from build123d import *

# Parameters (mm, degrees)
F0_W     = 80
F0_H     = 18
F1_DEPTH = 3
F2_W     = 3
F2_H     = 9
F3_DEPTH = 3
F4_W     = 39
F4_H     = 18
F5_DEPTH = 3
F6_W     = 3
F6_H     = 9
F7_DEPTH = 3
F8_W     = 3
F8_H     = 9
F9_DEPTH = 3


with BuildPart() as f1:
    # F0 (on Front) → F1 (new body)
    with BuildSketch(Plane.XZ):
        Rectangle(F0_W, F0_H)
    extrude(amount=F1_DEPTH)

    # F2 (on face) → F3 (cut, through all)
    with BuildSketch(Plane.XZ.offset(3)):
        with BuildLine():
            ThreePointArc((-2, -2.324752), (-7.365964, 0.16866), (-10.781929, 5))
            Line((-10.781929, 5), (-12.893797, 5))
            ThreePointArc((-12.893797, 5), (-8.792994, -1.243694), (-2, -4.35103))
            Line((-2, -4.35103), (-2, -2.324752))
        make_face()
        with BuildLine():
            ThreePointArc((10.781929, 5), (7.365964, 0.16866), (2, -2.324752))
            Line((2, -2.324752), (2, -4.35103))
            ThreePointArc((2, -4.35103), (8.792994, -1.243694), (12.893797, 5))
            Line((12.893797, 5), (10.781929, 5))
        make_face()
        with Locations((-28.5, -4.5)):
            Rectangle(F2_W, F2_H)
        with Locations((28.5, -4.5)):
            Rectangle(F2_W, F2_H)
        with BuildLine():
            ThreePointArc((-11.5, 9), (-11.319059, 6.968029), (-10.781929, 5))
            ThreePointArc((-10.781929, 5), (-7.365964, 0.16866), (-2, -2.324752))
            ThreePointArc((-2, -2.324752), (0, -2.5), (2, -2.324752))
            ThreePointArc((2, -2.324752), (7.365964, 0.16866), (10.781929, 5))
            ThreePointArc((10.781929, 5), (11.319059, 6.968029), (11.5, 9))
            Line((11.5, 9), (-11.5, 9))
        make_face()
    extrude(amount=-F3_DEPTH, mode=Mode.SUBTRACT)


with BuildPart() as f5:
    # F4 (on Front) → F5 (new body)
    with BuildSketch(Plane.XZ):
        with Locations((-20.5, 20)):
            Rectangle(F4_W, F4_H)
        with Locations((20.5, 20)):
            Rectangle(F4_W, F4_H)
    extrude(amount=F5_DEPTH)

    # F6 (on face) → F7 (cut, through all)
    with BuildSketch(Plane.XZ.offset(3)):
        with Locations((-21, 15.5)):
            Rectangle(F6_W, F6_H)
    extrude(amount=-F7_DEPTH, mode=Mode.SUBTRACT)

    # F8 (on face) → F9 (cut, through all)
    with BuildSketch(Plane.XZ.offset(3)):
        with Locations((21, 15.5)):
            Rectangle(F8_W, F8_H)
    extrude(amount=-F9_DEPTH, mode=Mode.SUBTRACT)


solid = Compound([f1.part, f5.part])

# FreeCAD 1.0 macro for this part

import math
import FreeCAD as App
import Part
import Sketcher

V = App.Vector
Q = App.Units.Quantity

doc = App.newDocument("Part")
body = doc.addObject("PartDesign::Body", "Body")

# Sketch on XZ plane
sketch1 = body.newObject("Sketcher::SketchObject", "Sketch")
sketch1.AttachmentSupport = (doc.getObject("XZ_Plane"), [""])
sketch1.MapMode = "FlatFace"
sketch1.addGeometry([
    Part.LineSegment(V(-40, 9, 0), V(-40, -9, 0)),
    Part.LineSegment(V(-40, -9, 0), V(40, -9, 0)),
    Part.LineSegment(V(40, -9, 0), V(40, 9, 0)),
    Part.LineSegment(V(40, 9, 0), V(-40, 9, 0)),
], False)
sketch1.addConstraint([
    Sketcher.Constraint("Coincident", 0, 2, 1, 1),
    Sketcher.Constraint("Coincident", 1, 2, 2, 1),
    Sketcher.Constraint("Coincident", 2, 2, 3, 1),
    Sketcher.Constraint("Coincident", 3, 2, 0, 1),
    Sketcher.Constraint("Vertical", 0),
    Sketcher.Constraint("Horizontal", 1),
    Sketcher.Constraint("Vertical", 2),
    Sketcher.Constraint("Horizontal", 3),
    Sketcher.Constraint("Symmetric", 0, 2, 2, 2, -1, 1),
    Sketcher.Constraint("DistanceX", 1, 1, 1, 2, Q("80 mm")),
    Sketcher.Constraint("DistanceY", 0, 2, 0, 1, Q("18 mm")),
])
pad1 = body.newObject("PartDesign::Pad", "Pad")
pad1.Profile = sketch1
pad1.Length = 3

# Sketch on XZ plane
sketch2 = body.newObject("Sketcher::SketchObject", "Sketch001")
sketch2.AttachmentSupport = (doc.getObject("XZ_Plane"), [""])
sketch2.MapMode = "FlatFace"
sketch2.AttachmentOffset = App.Placement(V(0, 0, 3), App.Rotation())
sketch2.addGeometry([
    Part.LineSegment(V(-10.781929, 5, 0), V(-12.893797, 5, 0)),  # 0
    Part.ArcOfCircle(Part.Circle(V(-0.000001, 8.999998, 0), V(0, 0, 1), 13.499998), math.radians(-162.76472), math.radians(-98.51962)),  # 1
    Part.LineSegment(V(-2, -4.35103, 0), V(-2, -2.324752, 0)),  # 2
    Part.ArcOfCircle(Part.Circle(V(0, 9.000022, 0), V(0, 0, 1), 11.500022), math.radians(-100.01539), math.radians(-79.98461)),  # 3
    Part.LineSegment(V(2, -2.324752, 0), V(2, -4.35103, 0)),  # 4
    Part.ArcOfCircle(Part.Circle(V(0.000001, 8.999998, 0), V(0, 0, 1), 13.499998), math.radians(-81.48038), math.radians(-17.23528)),  # 5
    Part.LineSegment(V(12.893797, 5, 0), V(10.781929, 5, 0)),  # 6
    Part.ArcOfCircle(Part.Circle(V(0.000017, 8.999998, 0), V(0, 0, 1), 11.499983), math.radians(-20.354427), math.radians(0.000011)),  # 7
    Part.LineSegment(V(11.5, 9, 0), V(-11.5, 9, 0)),  # 8
    Part.ArcOfCircle(Part.Circle(V(-0.000017, 8.999998, 0), V(0, 0, 1), 11.499983), math.radians(179.999989), math.radians(200.354427)),  # 9
    Part.LineSegment(V(-30, 0, 0), V(-30, -9, 0)),  # 10
    Part.LineSegment(V(-30, -9, 0), V(-27, -9, 0)),  # 11
    Part.LineSegment(V(-27, -9, 0), V(-27, 0, 0)),  # 12
    Part.LineSegment(V(-27, 0, 0), V(-30, 0, 0)),  # 13
    Part.LineSegment(V(27, 0, 0), V(27, -9, 0)),  # 14
    Part.LineSegment(V(27, -9, 0), V(30, -9, 0)),  # 15
    Part.LineSegment(V(30, -9, 0), V(30, 0, 0)),  # 16
    Part.LineSegment(V(30, 0, 0), V(27, 0, 0)),  # 17
], False)
sketch2.addConstraint([
    Sketcher.Constraint("Coincident", 0, 2, 1, 1),
    Sketcher.Constraint("Coincident", 1, 2, 2, 1),
    Sketcher.Constraint("Coincident", 2, 2, 3, 1),
    Sketcher.Constraint("Coincident", 3, 2, 4, 1),
    Sketcher.Constraint("Coincident", 4, 2, 5, 1),
    Sketcher.Constraint("Coincident", 5, 2, 6, 1),
    Sketcher.Constraint("Coincident", 6, 2, 7, 1),
    Sketcher.Constraint("Coincident", 7, 2, 8, 1),
    Sketcher.Constraint("Coincident", 8, 2, 9, 1),
    Sketcher.Constraint("Coincident", 9, 2, 0, 1),
    Sketcher.Constraint("Coincident", 10, 2, 11, 1),
    Sketcher.Constraint("Coincident", 11, 2, 12, 1),
    Sketcher.Constraint("Coincident", 12, 2, 13, 1),
    Sketcher.Constraint("Coincident", 13, 2, 10, 1),
    Sketcher.Constraint("Coincident", 14, 2, 15, 1),
    Sketcher.Constraint("Coincident", 15, 2, 16, 1),
    Sketcher.Constraint("Coincident", 16, 2, 17, 1),
    Sketcher.Constraint("Coincident", 17, 2, 14, 1),
    Sketcher.Constraint("Horizontal", 0),
    Sketcher.Constraint("Vertical", 2),
    Sketcher.Constraint("Vertical", 4),
    Sketcher.Constraint("Horizontal", 6),
    Sketcher.Constraint("Horizontal", 8),
    Sketcher.Constraint("Vertical", 10),
    Sketcher.Constraint("Horizontal", 11),
    Sketcher.Constraint("Vertical", 12),
    Sketcher.Constraint("Horizontal", 13),
    Sketcher.Constraint("Vertical", 14),
    Sketcher.Constraint("Horizontal", 15),
    Sketcher.Constraint("Vertical", 16),
    Sketcher.Constraint("Horizontal", 17),
    Sketcher.Constraint("Coincident", 5, 3, 1, 3),
    Sketcher.Constraint("Equal", 1, 5),
    Sketcher.Constraint("Equal", 7, 9),
    Sketcher.Constraint("Symmetric", 13, 2, 16, 2, -1, 1),
    Sketcher.Constraint("Symmetric", 7, 3, 9, 3, -2),
    Sketcher.Constraint("Symmetric", 2, 2, 3, 2, -2),
    Sketcher.Constraint("Symmetric", 0, 2, 5, 2, -2),
    Sketcher.Constraint("Symmetric", 11, 2, 14, 2, -2),
    Sketcher.Constraint("PointOnObject", 12, 2, -1),
    Sketcher.Constraint("Horizontal", 5, 3, 7, 3),
    Sketcher.Constraint("Horizontal", 5, 3, 7, 2),
    Sketcher.Constraint("Radius", 1, Q("13.499998 mm")),
    Sketcher.Constraint("DistanceX", 8, 2, 8, 1, Q("23 mm")),
    Sketcher.Constraint("DistanceX", 11, 1, 11, 2, Q("3 mm")),
    Sketcher.Constraint("DistanceY", 10, 2, 10, 1, Q("9 mm")),
    Sketcher.Constraint("DistanceY", -1, 1, 1, 3, Q("8.999998 mm")),
    Sketcher.Constraint("DistanceY", -1, 1, 0, 2, Q("5 mm")),
    Sketcher.Constraint("DistanceX", 1, 2, -1, 1, Q("2 mm")),
    Sketcher.Constraint("DistanceX", 10, 2, -1, 1, Q("30 mm")),
    Sketcher.Constraint("Radius", 3, Q("11.500022 mm")),
    Sketcher.Constraint("Radius", 7, Q("11.499983 mm")),
    Sketcher.Constraint("DistanceY", 2, 1, 2, 2, Q("2.026278 mm")),
])
pocket1 = body.newObject("PartDesign::Pocket", "Pocket")
pocket1.Profile = sketch2
pocket1.Type = "ThroughAll"
body2 = doc.addObject("PartDesign::Body", "Body001")
body2.AllowCompound = True

# Sketch on XZ plane
sketch3 = body2.newObject("Sketcher::SketchObject", "Sketch002")
sketch3.AttachmentSupport = (doc.getObject("XZ_Plane001"), [""])
sketch3.MapMode = "FlatFace"
sketch3.addGeometry([
    Part.LineSegment(V(-40, 29, 0), V(-40, 11, 0)),  # 0
    Part.LineSegment(V(-40, 11, 0), V(-1, 11, 0)),  # 1
    Part.LineSegment(V(-1, 11, 0), V(-1, 29, 0)),  # 2
    Part.LineSegment(V(-1, 29, 0), V(-40, 29, 0)),  # 3
    Part.LineSegment(V(1, 29, 0), V(1, 11, 0)),  # 4
    Part.LineSegment(V(1, 11, 0), V(40, 11, 0)),  # 5
    Part.LineSegment(V(40, 11, 0), V(40, 29, 0)),  # 6
    Part.LineSegment(V(40, 29, 0), V(1, 29, 0)),  # 7
], False)
sketch3.addConstraint([
    Sketcher.Constraint("Coincident", 0, 2, 1, 1),
    Sketcher.Constraint("Coincident", 1, 2, 2, 1),
    Sketcher.Constraint("Coincident", 2, 2, 3, 1),
    Sketcher.Constraint("Coincident", 3, 2, 0, 1),
    Sketcher.Constraint("Coincident", 4, 2, 5, 1),
    Sketcher.Constraint("Coincident", 5, 2, 6, 1),
    Sketcher.Constraint("Coincident", 6, 2, 7, 1),
    Sketcher.Constraint("Coincident", 7, 2, 4, 1),
    Sketcher.Constraint("Vertical", 0),
    Sketcher.Constraint("Horizontal", 1),
    Sketcher.Constraint("Vertical", 2),
    Sketcher.Constraint("Horizontal", 3),
    Sketcher.Constraint("Vertical", 4),
    Sketcher.Constraint("Horizontal", 5),
    Sketcher.Constraint("Vertical", 6),
    Sketcher.Constraint("Horizontal", 7),
    Sketcher.Constraint("Symmetric", 1, 2, 4, 2, -2),
    Sketcher.Constraint("Symmetric", 3, 2, 6, 2, -2),
    Sketcher.Constraint("DistanceX", 1, 1, 1, 2, Q("39 mm")),
    Sketcher.Constraint("DistanceY", 0, 2, 0, 1, Q("18 mm")),
    Sketcher.Constraint("DistanceX", 0, 2, -1, 1, Q("40 mm")),
    Sketcher.Constraint("DistanceY", -1, 1, 0, 2, Q("11 mm")),
])
pad2 = body2.newObject("PartDesign::Pad", "Pad001")
pad2.Profile = sketch3
pad2.Length = 3

# Sketch on XZ plane
sketch4 = body2.newObject("Sketcher::SketchObject", "Sketch003")
sketch4.AttachmentSupport = (doc.getObject("XZ_Plane001"), [""])
sketch4.MapMode = "FlatFace"
sketch4.AttachmentOffset = App.Placement(V(0, 0, 3), App.Rotation())
sketch4.addGeometry([
    Part.LineSegment(V(-22.5, 20, 0), V(-22.5, 11, 0)),
    Part.LineSegment(V(-22.5, 11, 0), V(-19.5, 11, 0)),
    Part.LineSegment(V(-19.5, 11, 0), V(-19.5, 20, 0)),
    Part.LineSegment(V(-19.5, 20, 0), V(-22.5, 20, 0)),
], False)
sketch4.addConstraint([
    Sketcher.Constraint("Coincident", 0, 2, 1, 1),
    Sketcher.Constraint("Coincident", 1, 2, 2, 1),
    Sketcher.Constraint("Coincident", 2, 2, 3, 1),
    Sketcher.Constraint("Coincident", 3, 2, 0, 1),
    Sketcher.Constraint("Vertical", 0),
    Sketcher.Constraint("Horizontal", 1),
    Sketcher.Constraint("Vertical", 2),
    Sketcher.Constraint("Horizontal", 3),
    Sketcher.Constraint("DistanceX", 1, 1, 1, 2, Q("3 mm")),
    Sketcher.Constraint("DistanceY", 0, 2, 0, 1, Q("9 mm")),
    Sketcher.Constraint("DistanceY", -1, 1, 0, 2, Q("11 mm")),
    Sketcher.Constraint("DistanceX", 0, 2, -1, 1, Q("22.5 mm")),
])
pocket2 = body2.newObject("PartDesign::Pocket", "Pocket001")
pocket2.Profile = sketch4
pocket2.Type = "ThroughAll"

# Sketch on XZ plane
sketch5 = body2.newObject("Sketcher::SketchObject", "Sketch004")
sketch5.AttachmentSupport = (doc.getObject("XZ_Plane001"), [""])
sketch5.MapMode = "FlatFace"
sketch5.AttachmentOffset = App.Placement(V(0, 0, 3), App.Rotation())
sketch5.addGeometry([
    Part.LineSegment(V(19.5, 20, 0), V(19.5, 11, 0)),
    Part.LineSegment(V(19.5, 11, 0), V(22.5, 11, 0)),
    Part.LineSegment(V(22.5, 11, 0), V(22.5, 20, 0)),
    Part.LineSegment(V(22.5, 20, 0), V(19.5, 20, 0)),
], False)
sketch5.addConstraint([
    Sketcher.Constraint("Coincident", 0, 2, 1, 1),
    Sketcher.Constraint("Coincident", 1, 2, 2, 1),
    Sketcher.Constraint("Coincident", 2, 2, 3, 1),
    Sketcher.Constraint("Coincident", 3, 2, 0, 1),
    Sketcher.Constraint("Vertical", 0),
    Sketcher.Constraint("Horizontal", 1),
    Sketcher.Constraint("Vertical", 2),
    Sketcher.Constraint("Horizontal", 3),
    Sketcher.Constraint("DistanceX", 1, 1, 1, 2, Q("3 mm")),
    Sketcher.Constraint("DistanceY", 0, 2, 0, 1, Q("9 mm")),
    Sketcher.Constraint("DistanceY", -1, 1, 0, 2, Q("11 mm")),
    Sketcher.Constraint("DistanceX", -1, 1, 0, 2, Q("19.5 mm")),
])
pocket3 = body2.newObject("PartDesign::Pocket", "Pocket002")
pocket3.Profile = sketch5
pocket3.Type = "ThroughAll"

doc.recompute()
